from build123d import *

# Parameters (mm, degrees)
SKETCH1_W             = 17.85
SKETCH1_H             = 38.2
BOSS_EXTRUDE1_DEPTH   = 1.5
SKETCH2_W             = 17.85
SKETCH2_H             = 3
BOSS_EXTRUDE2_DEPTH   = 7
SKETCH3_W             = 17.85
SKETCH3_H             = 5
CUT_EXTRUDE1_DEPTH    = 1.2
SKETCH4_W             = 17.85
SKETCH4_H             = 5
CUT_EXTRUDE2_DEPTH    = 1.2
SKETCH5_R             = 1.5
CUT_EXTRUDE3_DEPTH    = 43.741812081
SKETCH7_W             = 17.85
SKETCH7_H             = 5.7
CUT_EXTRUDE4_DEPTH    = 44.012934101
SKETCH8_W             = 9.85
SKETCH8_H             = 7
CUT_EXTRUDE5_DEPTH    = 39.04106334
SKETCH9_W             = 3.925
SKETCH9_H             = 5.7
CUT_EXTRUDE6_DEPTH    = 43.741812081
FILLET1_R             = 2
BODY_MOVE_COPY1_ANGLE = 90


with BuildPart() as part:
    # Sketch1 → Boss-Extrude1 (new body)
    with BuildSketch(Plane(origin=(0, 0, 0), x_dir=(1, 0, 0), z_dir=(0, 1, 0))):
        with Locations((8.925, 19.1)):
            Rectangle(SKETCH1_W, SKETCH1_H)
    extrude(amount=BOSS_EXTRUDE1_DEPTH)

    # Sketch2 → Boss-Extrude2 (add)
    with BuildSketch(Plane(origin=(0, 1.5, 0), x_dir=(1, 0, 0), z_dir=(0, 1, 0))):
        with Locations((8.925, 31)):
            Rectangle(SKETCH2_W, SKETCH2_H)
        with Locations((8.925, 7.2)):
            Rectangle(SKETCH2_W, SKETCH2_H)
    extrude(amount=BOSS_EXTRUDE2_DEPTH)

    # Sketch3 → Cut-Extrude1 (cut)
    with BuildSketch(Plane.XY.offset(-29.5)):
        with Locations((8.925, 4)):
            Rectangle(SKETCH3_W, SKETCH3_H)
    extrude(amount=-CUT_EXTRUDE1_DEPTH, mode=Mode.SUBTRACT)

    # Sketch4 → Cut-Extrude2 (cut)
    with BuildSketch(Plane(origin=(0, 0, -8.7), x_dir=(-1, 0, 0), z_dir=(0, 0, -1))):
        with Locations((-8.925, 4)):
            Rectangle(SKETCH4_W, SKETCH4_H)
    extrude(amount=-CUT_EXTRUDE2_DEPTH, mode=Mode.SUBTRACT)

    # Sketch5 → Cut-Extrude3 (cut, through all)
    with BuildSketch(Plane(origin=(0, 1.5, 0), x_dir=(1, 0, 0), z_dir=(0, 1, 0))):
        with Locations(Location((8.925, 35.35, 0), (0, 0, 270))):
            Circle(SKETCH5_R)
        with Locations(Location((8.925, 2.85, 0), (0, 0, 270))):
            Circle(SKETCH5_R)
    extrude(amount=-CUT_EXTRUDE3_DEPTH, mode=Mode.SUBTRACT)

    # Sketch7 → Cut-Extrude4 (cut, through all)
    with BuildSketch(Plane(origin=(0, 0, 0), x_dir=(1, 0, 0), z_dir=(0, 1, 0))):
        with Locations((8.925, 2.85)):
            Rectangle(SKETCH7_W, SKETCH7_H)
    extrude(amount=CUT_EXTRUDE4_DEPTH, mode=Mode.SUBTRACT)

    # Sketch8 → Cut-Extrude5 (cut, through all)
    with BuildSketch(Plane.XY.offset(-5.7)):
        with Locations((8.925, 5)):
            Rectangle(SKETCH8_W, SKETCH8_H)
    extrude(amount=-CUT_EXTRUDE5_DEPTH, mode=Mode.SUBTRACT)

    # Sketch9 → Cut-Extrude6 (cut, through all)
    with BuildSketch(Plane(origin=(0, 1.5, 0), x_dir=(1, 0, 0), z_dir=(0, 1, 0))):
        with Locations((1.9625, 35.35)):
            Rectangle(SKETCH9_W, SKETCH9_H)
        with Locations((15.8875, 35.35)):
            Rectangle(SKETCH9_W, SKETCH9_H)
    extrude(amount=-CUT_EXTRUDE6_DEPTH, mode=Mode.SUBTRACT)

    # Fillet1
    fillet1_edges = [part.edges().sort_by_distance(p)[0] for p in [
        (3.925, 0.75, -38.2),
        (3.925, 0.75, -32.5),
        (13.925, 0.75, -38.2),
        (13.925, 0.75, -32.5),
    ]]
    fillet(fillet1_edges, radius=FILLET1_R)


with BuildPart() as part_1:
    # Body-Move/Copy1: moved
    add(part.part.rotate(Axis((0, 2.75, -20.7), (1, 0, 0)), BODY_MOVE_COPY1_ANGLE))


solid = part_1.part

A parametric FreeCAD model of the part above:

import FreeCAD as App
import Part
import Sketcher

V = App.Vector


def edges_at(feature, points):
    """Names of the edges that pass closest to the given points."""
    edges = feature.Shape.Edges
    near = lambda p: min(range(len(edges)), key=lambda i: edges[i].distToShape(Part.Vertex(*p))[0])
    return sorted({f"Edge{near(p) + 1}" for p in points})

doc = App.newDocument("Part")
body = doc.addObject("PartDesign::Body", "Body")

# Sketch on XZ plane
sketch1 = body.newObject("Sketcher::SketchObject", "Sketch")
sketch1.AttachmentSupport = (doc.getObject("XZ_Plane"), [""])
sketch1.MapMode = "FlatFace"
sketch1.addGeometry(Part.LineSegment(V(0, -38, 0), V(0, 0, 0)), False)
sketch1.addGeometry(Part.LineSegment(V(0, 0, 0), V(18, 0, 0)), False)
sketch1.addGeometry(Part.LineSegment(V(18, 0, 0), V(18, -38, 0)), False)
sketch1.addGeometry(Part.LineSegment(V(18, -38, 0), V(0, -38, 0)), False)
sketch1.addConstraint(Sketcher.Constraint("Coincident", 0, 2, 1, 1))
sketch1.addConstraint(Sketcher.Constraint("Coincident", 1, 2, 2, 1))
sketch1.addConstraint(Sketcher.Constraint("Coincident", 2, 2, 3, 1))
sketch1.addConstraint(Sketcher.Constraint("Coincident", 3, 2, 0, 1))
sketch1.addConstraint(Sketcher.Constraint("Vertical", 0))
sketch1.addConstraint(Sketcher.Constraint("Horizontal", 1))
sketch1.addConstraint(Sketcher.Constraint("Vertical", 2))
sketch1.addConstraint(Sketcher.Constraint("Horizontal", 3))
sketch1.addConstraint(Sketcher.Constraint("Coincident", 0, 2, -1, 1))
sketch1.addConstraint(Sketcher.Constraint("DistanceY", 0, 1, 0, 2, 38.2))
sketch1.addConstraint(Sketcher.Constraint("DistanceX", 1, 1, 1, 2, 17.85))
pad1 = body.newObject("PartDesign::Pad", "Pad")
pad1.Profile = sketch1
pad1.Length = 1.5
pad1.Reversed = True

# Sketch on XZ plane
sketch2 = body.newObject("Sketcher::SketchObject", "Sketch001")
sketch2.AttachmentSupport = (doc.getObject("XZ_Plane"), [""])
sketch2.MapMode = "FlatFace"
sketch2.AttachmentOffset = App.Placement(V(0, 0, -1.5), App.Rotation())
sketch2.addGeometry(Part.LineSegment(V(0, -32.5, 0), V(0, -29.5, 0)), False)
sketch2.addGeometry(Part.LineSegment(V(0, -29.5, 0), V(17.9, -29.5, 0)), False)
sketch2.addGeometry(Part.LineSegment(V(17.9, -29.5, 0), V(17.9, -32.5, 0)), False)
sketch2.addGeometry(Part.LineSegment(V(17.9, -32.5, 0), V(0, -32.5, 0)), False)
sketch2.addGeometry(Part.LineSegment(V(0, -8.7, 0), V(0, -5.7, 0)), False)
sketch2.addGeometry(Part.LineSegment(V(0, -5.7, 0), V(17.9, -5.7, 0)), False)
sketch2.addGeometry(Part.LineSegment(V(17.9, -5.7, 0), V(17.9, -8.7, 0)), False)
sketch2.addGeometry(Part.LineSegment(V(17.9, -8.7, 0), V(0, -8.7, 0)), False)
sketch2.addConstraint(Sketcher.Constraint("Coincident", 0, 2, 1, 1))
sketch2.addConstraint(Sketcher.Constraint("Coincident", 1, 2, 2, 1))
sketch2.addConstraint(Sketcher.Constraint("Coincident", 2, 2, 3, 1))
sketch2.addConstraint(Sketcher.Constraint("Coincident", 3, 2, 0, 1))
sketch2.addConstraint(Sketcher.Constraint("Coincident", 4, 2, 5, 1))
sketch2.addConstraint(Sketcher.Constraint("Coincident", 5, 2, 6, 1))
sketch2.addConstraint(Sketcher.Constraint("Coincident", 6, 2, 7, 1))
sketch2.addConstraint(Sketcher.Constraint("Coincident", 7, 2, 4, 1))
sketch2.addConstraint(Sketcher.Constraint("Vertical", 0))
sketch2.addConstraint(Sketcher.Constraint("Horizontal", 1))
sketch2.addConstraint(Sketcher.Constraint("Vertical", 2))
sketch2.addConstraint(Sketcher.Constraint("Horizontal", 3))
sketch2.addConstraint(Sketcher.Constraint("Vertical", 4))
sketch2.addConstraint(Sketcher.Constraint("Horizontal", 5))
sketch2.addConstraint(Sketcher.Constraint("Vertical", 6))
sketch2.addConstraint(Sketcher.Constraint("Horizontal", 7))
sketch2.addConstraint(Sketcher.Constraint("PointOnObject", 0, 2, -2))
sketch2.addConstraint(Sketcher.Constraint("PointOnObject", 4, 2, -2))
sketch2.addConstraint(Sketcher.Constraint("Vertical", 2, 2, 5, 2))
sketch2.addConstraint(Sketcher.Constraint("Equal", 2, 4))
sketch2.addConstraint(Sketcher.Constraint("DistanceY", 0, 1, 0, 2, 3.0))
sketch2.addConstraint(Sketcher.Constraint("DistanceX", 1, 1, 1, 2, 17.85))
sketch2.addConstraint(Sketcher.Constraint("DistanceY", 0, 2, -1, 1, 29.5))
sketch2.addConstraint(Sketcher.Constraint("DistanceY", 4, 2, -1, 1, 5.7))
pad2 = body.newObject("PartDesign::Pad", "Pad001")
pad2.Profile = sketch2
pad2.Length = 7
pad2.Reversed = True

# Sketch on XY plane
sketch3 = body.newObject("Sketcher::SketchObject", "Sketch002")
sketch3.AttachmentSupport = (doc.getObject("XY_Plane"), [""])
sketch3.MapMode = "FlatFace"
sketch3.AttachmentOffset = App.Placement(V(0, 0, -29.5), App.Rotation())
sketch3.addGeometry(Part.LineSegment(V(0, 6, 0), V(0, 2, 0)), False)
sketch3.addGeometry(Part.LineSegment(V(0, 2, 0), V(18, 2, 0)), False)
sketch3.addGeometry(Part.LineSegment(V(18, 2, 0), V(18, 6, 0)), False)
sketch3.addGeometry(Part.LineSegment(V(18, 6, 0), V(0, 6, 0)), False)
sketch3.addConstraint(Sketcher.Constraint("Coincident", 0, 2, 1, 1))
sketch3.addConstraint(Sketcher.Constraint("Coincident", 1, 2, 2, 1))
sketch3.addConstraint(Sketcher.Constraint("Coincident", 2, 2, 3, 1))
sketch3.addConstraint(Sketcher.Constraint("Coincident", 3, 2, 0, 1))
sketch3.addConstraint(Sketcher.Constraint("Vertical", 0))
sketch3.addConstraint(Sketcher.Constraint("Horizontal", 1))
sketch3.addConstraint(Sketcher.Constraint("Vertical", 2))
sketch3.addConstraint(Sketcher.Constraint("Horizontal", 3))
sketch3.addConstraint(Sketcher.Constraint("PointOnObject", 0, 2, -2))
sketch3.addConstraint(Sketcher.Constraint("DistanceY", 0, 2, 0, 1, 5.0))
sketch3.addConstraint(Sketcher.Constraint("DistanceX", 1, 1, 1, 2, 17.85))
sketch3.addConstraint(Sketcher.Constraint("DistanceY", -1, 1, 0, 2, 1.5))
pocket1 = body.newObject("PartDesign::Pocket", "Pocket")
pocket1.Profile = sketch3
pocket1.Length = 1.2

# Sketch on XY plane
sketch4 = body.newObject("Sketcher::SketchObject", "Sketch003")
sketch4.AttachmentSupport = (doc.getObject("XY_Plane"), [""])
sketch4.MapMode = "FlatFace"
sketch4.AttachmentOffset = App.Placement(V(0, 0, -8.7), App.Rotation())
sketch4.addGeometry(Part.LineSegment(V(18, 6, 0), V(18, 2, 0)), False)
sketch4.addGeometry(Part.LineSegment(V(18, 2, 0), V(0, 2, 0)), False)
sketch4.addGeometry(Part.LineSegment(V(0, 2, 0), V(0, 6, 0)), False)
sketch4.addGeometry(Part.LineSegment(V(0, 6, 0), V(18, 6, 0)), False)
sketch4.addConstraint(Sketcher.Constraint("Coincident", 0, 2, 1, 1))
sketch4.addConstraint(Sketcher.Constraint("Coincident", 1, 2, 2, 1))
sketch4.addConstraint(Sketcher.Constraint("Coincident", 2, 2, 3, 1))
sketch4.addConstraint(Sketcher.Constraint("Coincident", 3, 2, 0, 1))
sketch4.addConstraint(Sketcher.Constraint("Vertical", 0))
sketch4.addConstraint(Sketcher.Constraint("Horizontal", 1))
sketch4.addConstraint(Sketcher.Constraint("Vertical", 2))
sketch4.addConstraint(Sketcher.Constraint("Horizontal", 3))
sketch4.addConstraint(Sketcher.Constraint("PointOnObject", 1, 2, -2))
sketch4.addConstraint(Sketcher.Constraint("DistanceY", 0, 2, 0, 1, 5.0))
sketch4.addConstraint(Sketcher.Constraint("DistanceX", 1, 2, 1, 1, 17.85))
sketch4.addConstraint(Sketcher.Constraint("DistanceY", -1, 1, 0, 2, 1.5))
pocket2 = body.newObject("PartDesign::Pocket", "Pocket001")
pocket2.Profile = sketch4
pocket2.Length = 1.2
pocket2.Reversed = True

# Sketch on XZ plane
sketch5 = body.newObject("Sketcher::SketchObject", "Sketch004")
sketch5.AttachmentSupport = (doc.getObject("XZ_Plane"), [""])
sketch5.MapMode = "FlatFace"
sketch5.AttachmentOffset = App.Placement(V(0, 0, -1.5), App.Rotation())
sketch5.addGeometry(Part.Circle(V(8.9, -35.4, 0), V(0, 0, 1), 1.5), False)
sketch5.addGeometry(Part.Circle(V(8.9, -2.9, 0), V(0, 0, 1), 1.5), False)
sketch5.addConstraint(Sketcher.Constraint("Equal", 0, 1))
sketch5.addConstraint(Sketcher.Constraint("Vertical", 0, 3, 1, 3))
sketch5.addConstraint(Sketcher.Constraint("Diameter", 0, 3.0))
sketch5.addConstraint(Sketcher.Constraint("DistanceY", 0, 3, 1, 3, 32.5))
sketch5.addConstraint(Sketcher.Constraint("DistanceY", 0, 3, -1, 1, 35.35))
sketch5.addConstraint(Sketcher.Constraint("DistanceX", -1, 1, 0, 3, 8.925))
pocket3 = body.newObject("PartDesign::Pocket", "Pocket002")
pocket3.Profile = sketch5
pocket3.Type = "ThroughAll"
pocket3.Reversed = True

# Sketch on XZ plane
sketch6 = body.newObject("Sketcher::SketchObject", "Sketch005")
sketch6.AttachmentSupport = (doc.getObject("XZ_Plane"), [""])
sketch6.MapMode = "FlatFace"
sketch6.addGeometry(Part.LineSegment(V(0, -6, 0), V(0, 0, 0)), False)
sketch6.addGeometry(Part.LineSegment(V(0, 0, 0), V(18, 0, 0)), False)
sketch6.addGeometry(Part.LineSegment(V(18, 0, 0), V(18, -6, 0)), False)
sketch6.addGeometry(Part.LineSegment(V(18, -6, 0), V(0, -6, 0)), False)
sketch6.addConstraint(Sketcher.Constraint("Coincident", 0, 2, 1, 1))
sketch6.addConstraint(Sketcher.Constraint("Coincident", 1, 2, 2, 1))
sketch6.addConstraint(Sketcher.Constraint("Coincident", 2, 2, 3, 1))
sketch6.addConstraint(Sketcher.Constraint("Coincident", 3, 2, 0, 1))
sketch6.addConstraint(Sketcher.Constraint("Vertical", 0))
sketch6.addConstraint(Sketcher.Constraint("Horizontal", 1))
sketch6.addConstraint(Sketcher.Constraint("Vertical", 2))
sketch6.addConstraint(Sketcher.Constraint("Horizontal", 3))
sketch6.addConstraint(Sketcher.Constraint("Coincident", 0, 2, -1, 1))
sketch6.addConstraint(Sketcher.Constraint("DistanceY", 0, 1, 0, 2, 5.7))
sketch6.addConstraint(Sketcher.Constraint("DistanceX", 1, 1, 1, 2, 17.85))
pocket4 = body.newObject("PartDesign::Pocket", "Pocket003")
pocket4.Profile = sketch6
pocket4.Type = "ThroughAll"

# Sketch on XY plane
sketch7 = body.newObject("Sketcher::SketchObject", "Sketch006")
sketch7.AttachmentSupport = (doc.getObject("XY_Plane"), [""])
sketch7.MapMode = "FlatFace"
sketch7.AttachmentOffset = App.Placement(V(0, 0, -5.7), App.Rotation())
sketch7.addGeometry(Part.LineSegment(V(4, 8, 0), V(4, 2, 0)), False)
sketch7.addGeometry(Part.LineSegment(V(4, 2, 0), V(14, 2, 0)), False)
sketch7.addGeometry(Part.LineSegment(V(14, 2, 0), V(14, 8, 0)), False)
sketch7.addGeometry(Part.LineSegment(V(14, 8, 0), V(4, 8, 0)), False)
sketch7.addConstraint(Sketcher.Constraint("Coincident", 0, 2, 1, 1))
sketch7.addConstraint(Sketcher.Constraint("Coincident", 1, 2, 2, 1))
sketch7.addConstraint(Sketcher.Constraint("Coincident", 2, 2, 3, 1))
sketch7.addConstraint(Sketcher.Constraint("Coincident", 3, 2, 0, 1))
sketch7.addConstraint(Sketcher.Constraint("Vertical", 0))
sketch7.addConstraint(Sketcher.Constraint("Horizontal", 1))
sketch7.addConstraint(Sketcher.Constraint("Vertical", 2))
sketch7.addConstraint(Sketcher.Constraint("Horizontal", 3))
sketch7.addConstraint(Sketcher.Constraint("DistanceY", 0, 2, 0, 1, 7.0))
sketch7.addConstraint(Sketcher.Constraint("DistanceX", -1, 1, 0, 2, 4.0))
sketch7.addConstraint(Sketcher.Constraint("DistanceX", 1, 1, 1, 2, 9.85))
sketch7.addConstraint(Sketcher.Constraint("DistanceY", -1, 1, 0, 2, 1.5))
pocket5 = body.newObject("PartDesign::Pocket", "Pocket004")
pocket5.Profile = sketch7
pocket5.Type = "ThroughAll"

# Sketch on XZ plane
sketch8 = body.newObject("Sketcher::SketchObject", "Sketch007")
sketch8.AttachmentSupport = (doc.getObject("XZ_Plane"), [""])
sketch8.MapMode = "FlatFace"
sketch8.AttachmentOffset = App.Placement(V(0, 0, -1.5), App.Rotation())
sketch8.addGeometry(Part.LineSegment(V(0, -38.2, 0), V(0, -32.5, 0)), False)
sketch8.addGeometry(Part.LineSegment(V(0, -32.5, 0), V(3.9, -32.5, 0)), False)
sketch8.addGeometry(Part.LineSegment(V(3.9, -32.5, 0), V(3.9, -38.2, 0)), False)
sketch8.addGeometry(Part.LineSegment(V(3.9, -38.2, 0), V(0, -38.2, 0)), False)
sketch8.addGeometry(Part.LineSegment(V(13.9, -38.2, 0), V(13.9, -32.5, 0)), False)
sketch8.addGeometry(Part.LineSegment(V(13.9, -32.5, 0), V(17.9, -32.5, 0)), False)
sketch8.addGeometry(Part.LineSegment(V(17.9, -32.5, 0), V(17.9, -38.2, 0)), False)
sketch8.addGeometry(Part.LineSegment(V(17.9, -38.2, 0), V(13.9, -38.2, 0)), False)
sketch8.addConstraint(Sketcher.Constraint("Coincident", 0, 2, 1, 1))
sketch8.addConstraint(Sketcher.Constraint("Coincident", 1, 2, 2, 1))
sketch8.addConstraint(Sketcher.Constraint("Coincident", 2, 2, 3, 1))
sketch8.addConstraint(Sketcher.Constraint("Coincident", 3, 2, 0, 1))
sketch8.addConstraint(Sketcher.Constraint("Coincident", 4, 2, 5, 1))
sketch8.addConstraint(Sketcher.Constraint("Coincident", 5, 2, 6, 1))
sketch8.addConstraint(Sketcher.Constraint("Coincident", 6, 2, 7, 1))
sketch8.addConstraint(Sketcher.Constraint("Coincident", 7, 2, 4, 1))
sketch8.addConstraint(Sketcher.Constraint("Vertical", 0))
sketch8.addConstraint(Sketcher.Constraint("Horizontal", 1))
sketch8.addConstraint(Sketcher.Constraint("Vertical", 2))
sketch8.addConstraint(Sketcher.Constraint("Horizontal", 3))
sketch8.addConstraint(Sketcher.Constraint("Vertical", 4))
sketch8.addConstraint(Sketcher.Constraint("Horizontal", 5))
sketch8.addConstraint(Sketcher.Constraint("Vertical", 6))
sketch8.addConstraint(Sketcher.Constraint("Horizontal", 7))
sketch8.addConstraint(Sketcher.Constraint("PointOnObject", 0, 2, -2))
sketch8.addConstraint(Sketcher.Constraint("Horizontal", 1, 2, 4, 2))
sketch8.addConstraint(Sketcher.Constraint("Horizontal", 3, 2, 6, 2))
sketch8.addConstraint(Sketcher.Constraint("Equal", 3, 5))
sketch8.addConstraint(Sketcher.Constraint("DistanceY", 0, 1, 0, 2, 5.7))
sketch8.addConstraint(Sketcher.Constraint("DistanceX", 1, 2, 4, 2, 10.0))
sketch8.addConstraint(Sketcher.Constraint("DistanceY", 0, 2, -1, 1, 32.5))
sketch8.addConstraint(Sketcher.Constraint("DistanceX", 1, 1, 1, 2, 3.925))
pocket6 = body.newObject("PartDesign::Pocket", "Pocket005")
pocket6.Profile = sketch8
pocket6.Type = "ThroughAll"
pocket6.Reversed = True
doc.recompute()

fillet = body.newObject("PartDesign::Fillet", "Fillet")
fillet.Base = (pocket6, edges_at(pocket6, [
    (3.925, 0.75, -38.2),
    (3.925, 0.75, -32.5),
    (13.925, 0.75, -38.2),
    (13.925, 0.75, -32.5),
]))
fillet.Radius = 2
body2 = doc.addObject("PartDesign::Body", "Body001")
doc.recompute()

body.Placement = App.Placement(V(0, -17.95, -23.45), App.Rotation(V(1, 0, 0), 90))
boolean = body2.newObject("PartDesign::Boolean", "Boolean")
boolean.Type = "Fuse"
boolean.addObjects([body])

doc.recompute()
